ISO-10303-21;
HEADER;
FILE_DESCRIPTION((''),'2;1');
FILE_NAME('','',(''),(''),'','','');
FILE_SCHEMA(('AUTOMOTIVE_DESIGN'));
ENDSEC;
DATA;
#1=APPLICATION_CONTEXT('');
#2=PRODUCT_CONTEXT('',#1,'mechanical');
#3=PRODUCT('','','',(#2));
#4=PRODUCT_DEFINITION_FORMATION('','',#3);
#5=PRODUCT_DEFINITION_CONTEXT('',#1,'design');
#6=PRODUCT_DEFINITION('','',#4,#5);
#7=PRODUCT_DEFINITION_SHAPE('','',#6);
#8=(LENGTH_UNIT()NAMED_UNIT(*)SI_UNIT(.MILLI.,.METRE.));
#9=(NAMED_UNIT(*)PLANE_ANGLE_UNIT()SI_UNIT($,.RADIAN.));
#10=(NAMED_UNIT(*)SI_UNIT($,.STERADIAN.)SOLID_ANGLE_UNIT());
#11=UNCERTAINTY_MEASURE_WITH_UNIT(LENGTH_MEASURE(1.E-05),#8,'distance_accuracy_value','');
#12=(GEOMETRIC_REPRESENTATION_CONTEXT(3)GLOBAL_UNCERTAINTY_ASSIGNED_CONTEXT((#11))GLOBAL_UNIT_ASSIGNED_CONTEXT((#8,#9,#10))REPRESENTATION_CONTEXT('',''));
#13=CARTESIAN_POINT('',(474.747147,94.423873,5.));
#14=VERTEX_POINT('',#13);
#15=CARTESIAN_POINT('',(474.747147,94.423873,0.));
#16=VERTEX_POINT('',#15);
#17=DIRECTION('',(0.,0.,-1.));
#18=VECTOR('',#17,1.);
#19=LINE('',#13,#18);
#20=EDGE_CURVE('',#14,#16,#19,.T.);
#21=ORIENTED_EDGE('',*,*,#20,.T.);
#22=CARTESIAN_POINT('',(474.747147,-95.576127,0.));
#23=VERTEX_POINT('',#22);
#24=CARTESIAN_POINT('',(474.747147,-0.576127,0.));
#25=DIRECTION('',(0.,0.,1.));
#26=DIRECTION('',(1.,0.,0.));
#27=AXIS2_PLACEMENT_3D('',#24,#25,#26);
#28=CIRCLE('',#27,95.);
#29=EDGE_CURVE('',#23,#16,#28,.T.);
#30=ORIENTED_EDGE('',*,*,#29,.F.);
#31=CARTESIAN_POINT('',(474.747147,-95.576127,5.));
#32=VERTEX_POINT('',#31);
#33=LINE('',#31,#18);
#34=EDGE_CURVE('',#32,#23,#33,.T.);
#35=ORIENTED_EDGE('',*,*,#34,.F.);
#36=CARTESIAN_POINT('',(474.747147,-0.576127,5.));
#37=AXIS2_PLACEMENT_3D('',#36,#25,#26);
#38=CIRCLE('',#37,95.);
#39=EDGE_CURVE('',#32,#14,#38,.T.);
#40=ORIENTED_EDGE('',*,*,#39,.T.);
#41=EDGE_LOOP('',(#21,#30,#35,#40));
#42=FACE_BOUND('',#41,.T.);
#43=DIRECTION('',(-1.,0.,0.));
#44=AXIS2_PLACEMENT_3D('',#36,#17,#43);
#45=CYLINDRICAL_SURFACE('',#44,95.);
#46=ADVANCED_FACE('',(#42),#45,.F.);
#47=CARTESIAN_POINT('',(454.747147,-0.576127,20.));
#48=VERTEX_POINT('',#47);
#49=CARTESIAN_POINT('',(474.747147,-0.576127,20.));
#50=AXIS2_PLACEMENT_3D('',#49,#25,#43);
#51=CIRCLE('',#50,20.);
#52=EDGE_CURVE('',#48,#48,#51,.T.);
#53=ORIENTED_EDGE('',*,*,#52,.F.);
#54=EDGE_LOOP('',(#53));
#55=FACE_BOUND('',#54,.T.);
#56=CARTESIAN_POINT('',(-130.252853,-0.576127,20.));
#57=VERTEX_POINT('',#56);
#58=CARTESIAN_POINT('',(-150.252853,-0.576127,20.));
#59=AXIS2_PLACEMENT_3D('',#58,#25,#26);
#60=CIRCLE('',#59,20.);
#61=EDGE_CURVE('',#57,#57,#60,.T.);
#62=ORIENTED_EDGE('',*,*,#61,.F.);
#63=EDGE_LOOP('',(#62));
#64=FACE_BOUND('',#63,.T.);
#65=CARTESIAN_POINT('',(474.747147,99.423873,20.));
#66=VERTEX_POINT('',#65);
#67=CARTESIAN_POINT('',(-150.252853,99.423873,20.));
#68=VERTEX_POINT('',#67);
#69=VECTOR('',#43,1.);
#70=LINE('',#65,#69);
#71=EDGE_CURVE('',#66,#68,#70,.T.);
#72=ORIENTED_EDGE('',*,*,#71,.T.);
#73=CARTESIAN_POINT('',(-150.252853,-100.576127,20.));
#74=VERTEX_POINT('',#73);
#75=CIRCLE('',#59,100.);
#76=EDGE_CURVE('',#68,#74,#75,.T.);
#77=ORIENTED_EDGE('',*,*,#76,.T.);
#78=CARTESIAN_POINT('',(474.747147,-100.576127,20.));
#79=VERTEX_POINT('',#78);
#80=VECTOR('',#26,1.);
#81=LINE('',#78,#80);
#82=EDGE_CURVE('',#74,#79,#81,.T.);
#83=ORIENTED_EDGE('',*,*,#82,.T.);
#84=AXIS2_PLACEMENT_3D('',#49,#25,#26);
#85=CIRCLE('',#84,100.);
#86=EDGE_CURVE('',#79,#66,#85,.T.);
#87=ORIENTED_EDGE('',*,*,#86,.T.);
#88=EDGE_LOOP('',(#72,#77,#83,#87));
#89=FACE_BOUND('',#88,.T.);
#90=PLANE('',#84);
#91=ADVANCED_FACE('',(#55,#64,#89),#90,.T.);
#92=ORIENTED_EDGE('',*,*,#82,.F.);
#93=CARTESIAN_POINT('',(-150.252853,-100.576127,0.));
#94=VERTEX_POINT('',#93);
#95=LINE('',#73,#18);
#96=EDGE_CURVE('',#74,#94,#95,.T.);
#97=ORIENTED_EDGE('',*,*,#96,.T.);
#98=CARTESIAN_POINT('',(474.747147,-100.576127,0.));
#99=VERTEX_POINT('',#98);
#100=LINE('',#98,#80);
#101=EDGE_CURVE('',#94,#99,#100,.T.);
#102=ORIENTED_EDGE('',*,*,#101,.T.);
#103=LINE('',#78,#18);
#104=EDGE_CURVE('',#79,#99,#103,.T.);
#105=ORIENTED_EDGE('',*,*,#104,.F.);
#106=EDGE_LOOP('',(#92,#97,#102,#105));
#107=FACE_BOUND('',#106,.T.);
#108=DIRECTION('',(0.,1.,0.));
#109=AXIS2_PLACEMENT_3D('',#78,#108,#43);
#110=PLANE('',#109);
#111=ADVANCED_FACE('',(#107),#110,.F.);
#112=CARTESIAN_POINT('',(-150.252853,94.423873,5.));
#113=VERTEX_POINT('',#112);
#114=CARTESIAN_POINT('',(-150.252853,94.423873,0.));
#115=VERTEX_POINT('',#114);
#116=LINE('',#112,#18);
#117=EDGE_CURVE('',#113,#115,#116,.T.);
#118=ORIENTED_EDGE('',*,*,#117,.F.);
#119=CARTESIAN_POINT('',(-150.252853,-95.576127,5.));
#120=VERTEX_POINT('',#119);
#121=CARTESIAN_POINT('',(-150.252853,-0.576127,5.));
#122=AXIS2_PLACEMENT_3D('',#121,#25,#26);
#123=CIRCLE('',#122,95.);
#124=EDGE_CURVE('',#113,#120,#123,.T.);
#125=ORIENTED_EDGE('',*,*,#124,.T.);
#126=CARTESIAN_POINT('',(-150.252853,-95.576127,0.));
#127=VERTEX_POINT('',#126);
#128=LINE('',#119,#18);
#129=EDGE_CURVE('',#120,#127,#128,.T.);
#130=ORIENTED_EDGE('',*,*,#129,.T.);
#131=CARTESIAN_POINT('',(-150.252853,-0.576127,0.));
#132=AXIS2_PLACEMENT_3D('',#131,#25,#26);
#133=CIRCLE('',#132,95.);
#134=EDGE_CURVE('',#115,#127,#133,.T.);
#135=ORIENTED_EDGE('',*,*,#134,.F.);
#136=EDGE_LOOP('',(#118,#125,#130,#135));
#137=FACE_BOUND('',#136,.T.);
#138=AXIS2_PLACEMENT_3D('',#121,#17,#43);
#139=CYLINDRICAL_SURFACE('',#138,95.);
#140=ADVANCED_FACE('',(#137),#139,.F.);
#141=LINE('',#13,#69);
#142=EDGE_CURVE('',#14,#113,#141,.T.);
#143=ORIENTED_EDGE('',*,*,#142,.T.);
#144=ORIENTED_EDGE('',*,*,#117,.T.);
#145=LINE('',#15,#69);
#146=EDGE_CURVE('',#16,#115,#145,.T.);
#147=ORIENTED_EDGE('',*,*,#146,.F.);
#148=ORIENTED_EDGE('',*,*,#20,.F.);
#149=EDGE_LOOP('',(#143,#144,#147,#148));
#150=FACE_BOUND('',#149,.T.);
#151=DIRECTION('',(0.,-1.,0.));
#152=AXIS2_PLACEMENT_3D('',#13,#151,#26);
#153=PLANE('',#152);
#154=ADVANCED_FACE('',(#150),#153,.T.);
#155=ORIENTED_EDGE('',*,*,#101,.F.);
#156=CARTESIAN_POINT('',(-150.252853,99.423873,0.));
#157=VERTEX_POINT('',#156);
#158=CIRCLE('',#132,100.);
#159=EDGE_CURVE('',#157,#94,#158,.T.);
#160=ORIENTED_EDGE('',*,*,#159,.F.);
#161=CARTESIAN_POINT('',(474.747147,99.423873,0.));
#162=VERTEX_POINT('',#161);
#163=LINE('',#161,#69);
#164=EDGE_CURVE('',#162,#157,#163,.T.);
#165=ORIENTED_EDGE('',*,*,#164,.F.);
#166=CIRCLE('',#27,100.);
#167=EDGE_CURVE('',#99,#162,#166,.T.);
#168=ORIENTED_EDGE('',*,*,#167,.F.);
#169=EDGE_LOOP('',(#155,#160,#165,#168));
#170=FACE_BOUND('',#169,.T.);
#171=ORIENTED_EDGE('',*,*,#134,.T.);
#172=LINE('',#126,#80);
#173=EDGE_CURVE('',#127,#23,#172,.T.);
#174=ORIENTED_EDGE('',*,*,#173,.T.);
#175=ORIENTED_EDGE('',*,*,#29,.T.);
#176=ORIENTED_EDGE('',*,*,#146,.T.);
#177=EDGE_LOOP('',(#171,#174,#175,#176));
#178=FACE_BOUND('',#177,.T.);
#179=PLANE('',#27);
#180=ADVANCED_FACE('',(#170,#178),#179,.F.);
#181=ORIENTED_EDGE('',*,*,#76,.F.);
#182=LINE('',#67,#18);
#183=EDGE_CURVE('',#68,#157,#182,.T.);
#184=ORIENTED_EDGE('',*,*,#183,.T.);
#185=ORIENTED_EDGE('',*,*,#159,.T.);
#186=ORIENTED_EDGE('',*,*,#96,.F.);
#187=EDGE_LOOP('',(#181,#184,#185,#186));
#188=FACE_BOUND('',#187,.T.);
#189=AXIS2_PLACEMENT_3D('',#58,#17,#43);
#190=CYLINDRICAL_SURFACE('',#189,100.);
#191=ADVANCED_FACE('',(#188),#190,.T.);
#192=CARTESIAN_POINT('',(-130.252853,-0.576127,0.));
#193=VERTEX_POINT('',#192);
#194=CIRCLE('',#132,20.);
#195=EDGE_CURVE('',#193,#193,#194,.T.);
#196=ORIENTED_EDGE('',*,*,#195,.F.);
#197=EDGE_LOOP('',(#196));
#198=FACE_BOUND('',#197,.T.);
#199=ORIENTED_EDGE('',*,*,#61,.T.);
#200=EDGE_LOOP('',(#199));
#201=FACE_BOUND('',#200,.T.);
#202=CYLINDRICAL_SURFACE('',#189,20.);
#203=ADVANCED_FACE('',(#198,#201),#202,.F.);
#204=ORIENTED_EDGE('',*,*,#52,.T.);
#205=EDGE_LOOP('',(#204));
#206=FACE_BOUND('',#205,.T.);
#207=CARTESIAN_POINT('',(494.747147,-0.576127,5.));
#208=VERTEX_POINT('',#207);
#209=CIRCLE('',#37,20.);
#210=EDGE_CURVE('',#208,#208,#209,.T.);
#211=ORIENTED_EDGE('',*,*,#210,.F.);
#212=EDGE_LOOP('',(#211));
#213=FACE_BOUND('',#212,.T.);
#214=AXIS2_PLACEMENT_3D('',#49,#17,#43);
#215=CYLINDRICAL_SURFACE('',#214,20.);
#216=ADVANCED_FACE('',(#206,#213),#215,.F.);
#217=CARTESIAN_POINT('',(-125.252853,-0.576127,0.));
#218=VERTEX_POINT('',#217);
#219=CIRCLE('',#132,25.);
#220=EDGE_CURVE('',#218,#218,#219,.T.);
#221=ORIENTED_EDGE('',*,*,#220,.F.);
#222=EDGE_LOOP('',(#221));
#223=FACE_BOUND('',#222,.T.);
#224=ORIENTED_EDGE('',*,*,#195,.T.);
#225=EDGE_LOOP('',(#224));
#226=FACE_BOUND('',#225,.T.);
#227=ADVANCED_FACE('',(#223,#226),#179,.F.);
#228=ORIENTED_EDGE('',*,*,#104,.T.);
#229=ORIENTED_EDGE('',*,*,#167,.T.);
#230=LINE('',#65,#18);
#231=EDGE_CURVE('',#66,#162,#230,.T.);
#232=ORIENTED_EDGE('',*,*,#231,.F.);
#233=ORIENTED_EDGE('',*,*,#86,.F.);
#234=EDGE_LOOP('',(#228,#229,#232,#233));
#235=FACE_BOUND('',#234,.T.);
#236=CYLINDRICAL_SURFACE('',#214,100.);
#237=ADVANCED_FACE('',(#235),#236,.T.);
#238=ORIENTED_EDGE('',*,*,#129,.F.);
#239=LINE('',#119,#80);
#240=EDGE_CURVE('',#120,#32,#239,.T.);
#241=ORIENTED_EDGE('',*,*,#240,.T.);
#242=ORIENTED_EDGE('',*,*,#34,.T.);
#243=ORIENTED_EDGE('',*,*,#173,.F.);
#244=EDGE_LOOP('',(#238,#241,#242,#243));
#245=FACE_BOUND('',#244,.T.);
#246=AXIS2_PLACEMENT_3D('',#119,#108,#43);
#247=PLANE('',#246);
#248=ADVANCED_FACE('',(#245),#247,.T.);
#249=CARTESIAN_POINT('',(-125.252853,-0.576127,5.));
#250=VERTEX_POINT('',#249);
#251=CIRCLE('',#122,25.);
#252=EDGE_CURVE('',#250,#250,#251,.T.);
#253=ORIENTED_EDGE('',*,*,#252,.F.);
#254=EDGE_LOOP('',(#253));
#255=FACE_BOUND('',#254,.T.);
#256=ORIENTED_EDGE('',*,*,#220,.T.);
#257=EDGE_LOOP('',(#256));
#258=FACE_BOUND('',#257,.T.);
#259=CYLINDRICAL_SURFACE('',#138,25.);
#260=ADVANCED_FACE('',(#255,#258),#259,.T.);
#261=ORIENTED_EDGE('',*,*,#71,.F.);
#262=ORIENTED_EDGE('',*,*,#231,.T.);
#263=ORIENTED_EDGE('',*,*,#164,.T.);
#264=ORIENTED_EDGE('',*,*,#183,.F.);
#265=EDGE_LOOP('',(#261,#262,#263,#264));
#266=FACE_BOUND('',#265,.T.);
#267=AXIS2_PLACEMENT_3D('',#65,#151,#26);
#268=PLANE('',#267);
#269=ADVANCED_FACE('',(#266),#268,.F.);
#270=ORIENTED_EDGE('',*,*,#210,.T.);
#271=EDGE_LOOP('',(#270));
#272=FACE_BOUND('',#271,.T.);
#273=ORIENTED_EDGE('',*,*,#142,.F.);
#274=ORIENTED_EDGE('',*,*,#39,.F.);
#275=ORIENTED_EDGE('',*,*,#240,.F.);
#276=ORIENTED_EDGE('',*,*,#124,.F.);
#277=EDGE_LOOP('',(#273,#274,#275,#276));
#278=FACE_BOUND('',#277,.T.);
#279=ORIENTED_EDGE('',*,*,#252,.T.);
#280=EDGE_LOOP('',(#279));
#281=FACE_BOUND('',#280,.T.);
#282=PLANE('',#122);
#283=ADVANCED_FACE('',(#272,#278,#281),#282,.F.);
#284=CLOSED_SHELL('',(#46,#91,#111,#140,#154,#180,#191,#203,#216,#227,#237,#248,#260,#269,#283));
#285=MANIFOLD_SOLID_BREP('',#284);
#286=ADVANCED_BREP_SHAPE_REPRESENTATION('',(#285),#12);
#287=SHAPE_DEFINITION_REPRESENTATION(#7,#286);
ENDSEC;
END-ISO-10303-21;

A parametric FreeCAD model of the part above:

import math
import FreeCAD as App
import Part
import Sketcher
Q = App.Units.Quantity

doc = App.newDocument("Part")
body = doc.addObject("PartDesign::Body", "Body")

# Sketch on XY plane
sketch1 = body.newObject("Sketcher::SketchObject", "Sketch")
sketch1.AttachmentSupport = (doc.getObject("XY_Plane"), [""])
sketch1.MapMode = "FlatFace"
sketch1.addGeometry([
    Part.LineSegment(App.Vector(474.747147, 99.423873, 0), App.Vector(-150.252853, 99.423873, 0)),  # 0
    Part.ArcOfCircle(Part.Circle(App.Vector(-150.252853, -0.576127, 0), App.Vector(0, 0, 1), 100), math.radians(90), math.radians(270)),  # 1
    Part.LineSegment(App.Vector(-150.252853, -100.576127, 0), App.Vector(474.747147, -100.576127, 0)),  # 2
    Part.ArcOfCircle(Part.Circle(App.Vector(474.747147, -0.576127, 0), App.Vector(0, 0, 1), 100), math.radians(-90), math.radians(90)),  # 3
    Part.Circle(App.Vector(-150.252853, -0.576127, 0), App.Vector(0, 0, 1), 20),  # 4
    Part.Circle(App.Vector(474.747147, -0.576127, 0), App.Vector(0, 0, 1), 20),  # 5
], False)
sketch1.addConstraint([
    Sketcher.Constraint("Tangent", 0, 2, 1, 1),
    Sketcher.Constraint("Tangent", 1, 2, 2, 1),
    Sketcher.Constraint("Tangent", 2, 2, 3, 1),
    Sketcher.Constraint("Tangent", 3, 2, 0, 1),
    Sketcher.Constraint("Horizontal", 0),
    Sketcher.Constraint("Horizontal", 2),
    Sketcher.Constraint("Coincident", 4, 3, 1, 3),
    Sketcher.Constraint("Coincident", 5, 3, 3, 3),
    Sketcher.Constraint("Equal", 4, 5),
    Sketcher.Constraint("Diameter", 4, Q("40 mm")),
    Sketcher.Constraint("Radius", 1, Q("100 mm")),
    Sketcher.Constraint("DistanceX", 0, 2, 0, 1, Q("625 mm")),
    Sketcher.Constraint("DistanceX", 1, 3, -1, 1, Q("150.252853 mm")),
    Sketcher.Constraint("DistanceY", 1, 3, -1, 1, Q("0.576127 mm")),
])
pad1 = body.newObject("PartDesign::Pad", "Pad")
pad1.Profile = sketch1
pad1.Length = 20

# Sketch on XY plane
sketch2 = body.newObject("Sketcher::SketchObject", "Sketch001")
sketch2.AttachmentSupport = (doc.getObject("XY_Plane"), [""])
sketch2.MapMode = "FlatFace"
sketch2.addGeometry([
    Part.LineSegment(App.Vector(-150.252853, -95.576127, 0), App.Vector(474.747147, -95.576127, 0)),  # 0
    Part.ArcOfCircle(Part.Circle(App.Vector(474.747147, -0.576127, 0), App.Vector(0, 0, 1), 95), math.radians(-90), math.radians(90)),  # 1
    Part.LineSegment(App.Vector(474.747147, 94.423873, 0), App.Vector(-150.252853, 94.423873, 0)),  # 2
    Part.ArcOfCircle(Part.Circle(App.Vector(-150.252853, -0.576127, 0), App.Vector(0, 0, 1), 95), math.radians(90), math.radians(270)),  # 3
    Part.Circle(App.Vector(-150.252853, -0.576127, 0), App.Vector(0, 0, 1), 25),  # 4
], False)
sketch2.addConstraint([
    Sketcher.Constraint("Tangent", 0, 2, 1, 1),
    Sketcher.Constraint("Tangent", 1, 2, 2, 1),
    Sketcher.Constraint("Tangent", 2, 2, 3, 1),
    Sketcher.Constraint("Tangent", 3, 2, 0, 1),
    Sketcher.Constraint("Horizontal", 0),
    Sketcher.Constraint("Horizontal", 2),
    Sketcher.Constraint("Coincident", 4, 3, 3, 3),
    Sketcher.Constraint("Diameter", 4, Q("50 mm")),
    Sketcher.Constraint("Radius", 1, Q("95 mm")),
    Sketcher.Constraint("DistanceX", 0, 1, 0, 2, Q("625 mm")),
    Sketcher.Constraint("DistanceX", -1, 1, 1, 3, Q("474.747147 mm")),
    Sketcher.Constraint("DistanceY", 1, 3, -1, 1, Q("0.576127 mm")),
])
pocket1 = body.newObject("PartDesign::Pocket", "Pocket")
pocket1.Profile = sketch2
pocket1.Length = 5
pocket1.Reversed = True

doc.recompute()
